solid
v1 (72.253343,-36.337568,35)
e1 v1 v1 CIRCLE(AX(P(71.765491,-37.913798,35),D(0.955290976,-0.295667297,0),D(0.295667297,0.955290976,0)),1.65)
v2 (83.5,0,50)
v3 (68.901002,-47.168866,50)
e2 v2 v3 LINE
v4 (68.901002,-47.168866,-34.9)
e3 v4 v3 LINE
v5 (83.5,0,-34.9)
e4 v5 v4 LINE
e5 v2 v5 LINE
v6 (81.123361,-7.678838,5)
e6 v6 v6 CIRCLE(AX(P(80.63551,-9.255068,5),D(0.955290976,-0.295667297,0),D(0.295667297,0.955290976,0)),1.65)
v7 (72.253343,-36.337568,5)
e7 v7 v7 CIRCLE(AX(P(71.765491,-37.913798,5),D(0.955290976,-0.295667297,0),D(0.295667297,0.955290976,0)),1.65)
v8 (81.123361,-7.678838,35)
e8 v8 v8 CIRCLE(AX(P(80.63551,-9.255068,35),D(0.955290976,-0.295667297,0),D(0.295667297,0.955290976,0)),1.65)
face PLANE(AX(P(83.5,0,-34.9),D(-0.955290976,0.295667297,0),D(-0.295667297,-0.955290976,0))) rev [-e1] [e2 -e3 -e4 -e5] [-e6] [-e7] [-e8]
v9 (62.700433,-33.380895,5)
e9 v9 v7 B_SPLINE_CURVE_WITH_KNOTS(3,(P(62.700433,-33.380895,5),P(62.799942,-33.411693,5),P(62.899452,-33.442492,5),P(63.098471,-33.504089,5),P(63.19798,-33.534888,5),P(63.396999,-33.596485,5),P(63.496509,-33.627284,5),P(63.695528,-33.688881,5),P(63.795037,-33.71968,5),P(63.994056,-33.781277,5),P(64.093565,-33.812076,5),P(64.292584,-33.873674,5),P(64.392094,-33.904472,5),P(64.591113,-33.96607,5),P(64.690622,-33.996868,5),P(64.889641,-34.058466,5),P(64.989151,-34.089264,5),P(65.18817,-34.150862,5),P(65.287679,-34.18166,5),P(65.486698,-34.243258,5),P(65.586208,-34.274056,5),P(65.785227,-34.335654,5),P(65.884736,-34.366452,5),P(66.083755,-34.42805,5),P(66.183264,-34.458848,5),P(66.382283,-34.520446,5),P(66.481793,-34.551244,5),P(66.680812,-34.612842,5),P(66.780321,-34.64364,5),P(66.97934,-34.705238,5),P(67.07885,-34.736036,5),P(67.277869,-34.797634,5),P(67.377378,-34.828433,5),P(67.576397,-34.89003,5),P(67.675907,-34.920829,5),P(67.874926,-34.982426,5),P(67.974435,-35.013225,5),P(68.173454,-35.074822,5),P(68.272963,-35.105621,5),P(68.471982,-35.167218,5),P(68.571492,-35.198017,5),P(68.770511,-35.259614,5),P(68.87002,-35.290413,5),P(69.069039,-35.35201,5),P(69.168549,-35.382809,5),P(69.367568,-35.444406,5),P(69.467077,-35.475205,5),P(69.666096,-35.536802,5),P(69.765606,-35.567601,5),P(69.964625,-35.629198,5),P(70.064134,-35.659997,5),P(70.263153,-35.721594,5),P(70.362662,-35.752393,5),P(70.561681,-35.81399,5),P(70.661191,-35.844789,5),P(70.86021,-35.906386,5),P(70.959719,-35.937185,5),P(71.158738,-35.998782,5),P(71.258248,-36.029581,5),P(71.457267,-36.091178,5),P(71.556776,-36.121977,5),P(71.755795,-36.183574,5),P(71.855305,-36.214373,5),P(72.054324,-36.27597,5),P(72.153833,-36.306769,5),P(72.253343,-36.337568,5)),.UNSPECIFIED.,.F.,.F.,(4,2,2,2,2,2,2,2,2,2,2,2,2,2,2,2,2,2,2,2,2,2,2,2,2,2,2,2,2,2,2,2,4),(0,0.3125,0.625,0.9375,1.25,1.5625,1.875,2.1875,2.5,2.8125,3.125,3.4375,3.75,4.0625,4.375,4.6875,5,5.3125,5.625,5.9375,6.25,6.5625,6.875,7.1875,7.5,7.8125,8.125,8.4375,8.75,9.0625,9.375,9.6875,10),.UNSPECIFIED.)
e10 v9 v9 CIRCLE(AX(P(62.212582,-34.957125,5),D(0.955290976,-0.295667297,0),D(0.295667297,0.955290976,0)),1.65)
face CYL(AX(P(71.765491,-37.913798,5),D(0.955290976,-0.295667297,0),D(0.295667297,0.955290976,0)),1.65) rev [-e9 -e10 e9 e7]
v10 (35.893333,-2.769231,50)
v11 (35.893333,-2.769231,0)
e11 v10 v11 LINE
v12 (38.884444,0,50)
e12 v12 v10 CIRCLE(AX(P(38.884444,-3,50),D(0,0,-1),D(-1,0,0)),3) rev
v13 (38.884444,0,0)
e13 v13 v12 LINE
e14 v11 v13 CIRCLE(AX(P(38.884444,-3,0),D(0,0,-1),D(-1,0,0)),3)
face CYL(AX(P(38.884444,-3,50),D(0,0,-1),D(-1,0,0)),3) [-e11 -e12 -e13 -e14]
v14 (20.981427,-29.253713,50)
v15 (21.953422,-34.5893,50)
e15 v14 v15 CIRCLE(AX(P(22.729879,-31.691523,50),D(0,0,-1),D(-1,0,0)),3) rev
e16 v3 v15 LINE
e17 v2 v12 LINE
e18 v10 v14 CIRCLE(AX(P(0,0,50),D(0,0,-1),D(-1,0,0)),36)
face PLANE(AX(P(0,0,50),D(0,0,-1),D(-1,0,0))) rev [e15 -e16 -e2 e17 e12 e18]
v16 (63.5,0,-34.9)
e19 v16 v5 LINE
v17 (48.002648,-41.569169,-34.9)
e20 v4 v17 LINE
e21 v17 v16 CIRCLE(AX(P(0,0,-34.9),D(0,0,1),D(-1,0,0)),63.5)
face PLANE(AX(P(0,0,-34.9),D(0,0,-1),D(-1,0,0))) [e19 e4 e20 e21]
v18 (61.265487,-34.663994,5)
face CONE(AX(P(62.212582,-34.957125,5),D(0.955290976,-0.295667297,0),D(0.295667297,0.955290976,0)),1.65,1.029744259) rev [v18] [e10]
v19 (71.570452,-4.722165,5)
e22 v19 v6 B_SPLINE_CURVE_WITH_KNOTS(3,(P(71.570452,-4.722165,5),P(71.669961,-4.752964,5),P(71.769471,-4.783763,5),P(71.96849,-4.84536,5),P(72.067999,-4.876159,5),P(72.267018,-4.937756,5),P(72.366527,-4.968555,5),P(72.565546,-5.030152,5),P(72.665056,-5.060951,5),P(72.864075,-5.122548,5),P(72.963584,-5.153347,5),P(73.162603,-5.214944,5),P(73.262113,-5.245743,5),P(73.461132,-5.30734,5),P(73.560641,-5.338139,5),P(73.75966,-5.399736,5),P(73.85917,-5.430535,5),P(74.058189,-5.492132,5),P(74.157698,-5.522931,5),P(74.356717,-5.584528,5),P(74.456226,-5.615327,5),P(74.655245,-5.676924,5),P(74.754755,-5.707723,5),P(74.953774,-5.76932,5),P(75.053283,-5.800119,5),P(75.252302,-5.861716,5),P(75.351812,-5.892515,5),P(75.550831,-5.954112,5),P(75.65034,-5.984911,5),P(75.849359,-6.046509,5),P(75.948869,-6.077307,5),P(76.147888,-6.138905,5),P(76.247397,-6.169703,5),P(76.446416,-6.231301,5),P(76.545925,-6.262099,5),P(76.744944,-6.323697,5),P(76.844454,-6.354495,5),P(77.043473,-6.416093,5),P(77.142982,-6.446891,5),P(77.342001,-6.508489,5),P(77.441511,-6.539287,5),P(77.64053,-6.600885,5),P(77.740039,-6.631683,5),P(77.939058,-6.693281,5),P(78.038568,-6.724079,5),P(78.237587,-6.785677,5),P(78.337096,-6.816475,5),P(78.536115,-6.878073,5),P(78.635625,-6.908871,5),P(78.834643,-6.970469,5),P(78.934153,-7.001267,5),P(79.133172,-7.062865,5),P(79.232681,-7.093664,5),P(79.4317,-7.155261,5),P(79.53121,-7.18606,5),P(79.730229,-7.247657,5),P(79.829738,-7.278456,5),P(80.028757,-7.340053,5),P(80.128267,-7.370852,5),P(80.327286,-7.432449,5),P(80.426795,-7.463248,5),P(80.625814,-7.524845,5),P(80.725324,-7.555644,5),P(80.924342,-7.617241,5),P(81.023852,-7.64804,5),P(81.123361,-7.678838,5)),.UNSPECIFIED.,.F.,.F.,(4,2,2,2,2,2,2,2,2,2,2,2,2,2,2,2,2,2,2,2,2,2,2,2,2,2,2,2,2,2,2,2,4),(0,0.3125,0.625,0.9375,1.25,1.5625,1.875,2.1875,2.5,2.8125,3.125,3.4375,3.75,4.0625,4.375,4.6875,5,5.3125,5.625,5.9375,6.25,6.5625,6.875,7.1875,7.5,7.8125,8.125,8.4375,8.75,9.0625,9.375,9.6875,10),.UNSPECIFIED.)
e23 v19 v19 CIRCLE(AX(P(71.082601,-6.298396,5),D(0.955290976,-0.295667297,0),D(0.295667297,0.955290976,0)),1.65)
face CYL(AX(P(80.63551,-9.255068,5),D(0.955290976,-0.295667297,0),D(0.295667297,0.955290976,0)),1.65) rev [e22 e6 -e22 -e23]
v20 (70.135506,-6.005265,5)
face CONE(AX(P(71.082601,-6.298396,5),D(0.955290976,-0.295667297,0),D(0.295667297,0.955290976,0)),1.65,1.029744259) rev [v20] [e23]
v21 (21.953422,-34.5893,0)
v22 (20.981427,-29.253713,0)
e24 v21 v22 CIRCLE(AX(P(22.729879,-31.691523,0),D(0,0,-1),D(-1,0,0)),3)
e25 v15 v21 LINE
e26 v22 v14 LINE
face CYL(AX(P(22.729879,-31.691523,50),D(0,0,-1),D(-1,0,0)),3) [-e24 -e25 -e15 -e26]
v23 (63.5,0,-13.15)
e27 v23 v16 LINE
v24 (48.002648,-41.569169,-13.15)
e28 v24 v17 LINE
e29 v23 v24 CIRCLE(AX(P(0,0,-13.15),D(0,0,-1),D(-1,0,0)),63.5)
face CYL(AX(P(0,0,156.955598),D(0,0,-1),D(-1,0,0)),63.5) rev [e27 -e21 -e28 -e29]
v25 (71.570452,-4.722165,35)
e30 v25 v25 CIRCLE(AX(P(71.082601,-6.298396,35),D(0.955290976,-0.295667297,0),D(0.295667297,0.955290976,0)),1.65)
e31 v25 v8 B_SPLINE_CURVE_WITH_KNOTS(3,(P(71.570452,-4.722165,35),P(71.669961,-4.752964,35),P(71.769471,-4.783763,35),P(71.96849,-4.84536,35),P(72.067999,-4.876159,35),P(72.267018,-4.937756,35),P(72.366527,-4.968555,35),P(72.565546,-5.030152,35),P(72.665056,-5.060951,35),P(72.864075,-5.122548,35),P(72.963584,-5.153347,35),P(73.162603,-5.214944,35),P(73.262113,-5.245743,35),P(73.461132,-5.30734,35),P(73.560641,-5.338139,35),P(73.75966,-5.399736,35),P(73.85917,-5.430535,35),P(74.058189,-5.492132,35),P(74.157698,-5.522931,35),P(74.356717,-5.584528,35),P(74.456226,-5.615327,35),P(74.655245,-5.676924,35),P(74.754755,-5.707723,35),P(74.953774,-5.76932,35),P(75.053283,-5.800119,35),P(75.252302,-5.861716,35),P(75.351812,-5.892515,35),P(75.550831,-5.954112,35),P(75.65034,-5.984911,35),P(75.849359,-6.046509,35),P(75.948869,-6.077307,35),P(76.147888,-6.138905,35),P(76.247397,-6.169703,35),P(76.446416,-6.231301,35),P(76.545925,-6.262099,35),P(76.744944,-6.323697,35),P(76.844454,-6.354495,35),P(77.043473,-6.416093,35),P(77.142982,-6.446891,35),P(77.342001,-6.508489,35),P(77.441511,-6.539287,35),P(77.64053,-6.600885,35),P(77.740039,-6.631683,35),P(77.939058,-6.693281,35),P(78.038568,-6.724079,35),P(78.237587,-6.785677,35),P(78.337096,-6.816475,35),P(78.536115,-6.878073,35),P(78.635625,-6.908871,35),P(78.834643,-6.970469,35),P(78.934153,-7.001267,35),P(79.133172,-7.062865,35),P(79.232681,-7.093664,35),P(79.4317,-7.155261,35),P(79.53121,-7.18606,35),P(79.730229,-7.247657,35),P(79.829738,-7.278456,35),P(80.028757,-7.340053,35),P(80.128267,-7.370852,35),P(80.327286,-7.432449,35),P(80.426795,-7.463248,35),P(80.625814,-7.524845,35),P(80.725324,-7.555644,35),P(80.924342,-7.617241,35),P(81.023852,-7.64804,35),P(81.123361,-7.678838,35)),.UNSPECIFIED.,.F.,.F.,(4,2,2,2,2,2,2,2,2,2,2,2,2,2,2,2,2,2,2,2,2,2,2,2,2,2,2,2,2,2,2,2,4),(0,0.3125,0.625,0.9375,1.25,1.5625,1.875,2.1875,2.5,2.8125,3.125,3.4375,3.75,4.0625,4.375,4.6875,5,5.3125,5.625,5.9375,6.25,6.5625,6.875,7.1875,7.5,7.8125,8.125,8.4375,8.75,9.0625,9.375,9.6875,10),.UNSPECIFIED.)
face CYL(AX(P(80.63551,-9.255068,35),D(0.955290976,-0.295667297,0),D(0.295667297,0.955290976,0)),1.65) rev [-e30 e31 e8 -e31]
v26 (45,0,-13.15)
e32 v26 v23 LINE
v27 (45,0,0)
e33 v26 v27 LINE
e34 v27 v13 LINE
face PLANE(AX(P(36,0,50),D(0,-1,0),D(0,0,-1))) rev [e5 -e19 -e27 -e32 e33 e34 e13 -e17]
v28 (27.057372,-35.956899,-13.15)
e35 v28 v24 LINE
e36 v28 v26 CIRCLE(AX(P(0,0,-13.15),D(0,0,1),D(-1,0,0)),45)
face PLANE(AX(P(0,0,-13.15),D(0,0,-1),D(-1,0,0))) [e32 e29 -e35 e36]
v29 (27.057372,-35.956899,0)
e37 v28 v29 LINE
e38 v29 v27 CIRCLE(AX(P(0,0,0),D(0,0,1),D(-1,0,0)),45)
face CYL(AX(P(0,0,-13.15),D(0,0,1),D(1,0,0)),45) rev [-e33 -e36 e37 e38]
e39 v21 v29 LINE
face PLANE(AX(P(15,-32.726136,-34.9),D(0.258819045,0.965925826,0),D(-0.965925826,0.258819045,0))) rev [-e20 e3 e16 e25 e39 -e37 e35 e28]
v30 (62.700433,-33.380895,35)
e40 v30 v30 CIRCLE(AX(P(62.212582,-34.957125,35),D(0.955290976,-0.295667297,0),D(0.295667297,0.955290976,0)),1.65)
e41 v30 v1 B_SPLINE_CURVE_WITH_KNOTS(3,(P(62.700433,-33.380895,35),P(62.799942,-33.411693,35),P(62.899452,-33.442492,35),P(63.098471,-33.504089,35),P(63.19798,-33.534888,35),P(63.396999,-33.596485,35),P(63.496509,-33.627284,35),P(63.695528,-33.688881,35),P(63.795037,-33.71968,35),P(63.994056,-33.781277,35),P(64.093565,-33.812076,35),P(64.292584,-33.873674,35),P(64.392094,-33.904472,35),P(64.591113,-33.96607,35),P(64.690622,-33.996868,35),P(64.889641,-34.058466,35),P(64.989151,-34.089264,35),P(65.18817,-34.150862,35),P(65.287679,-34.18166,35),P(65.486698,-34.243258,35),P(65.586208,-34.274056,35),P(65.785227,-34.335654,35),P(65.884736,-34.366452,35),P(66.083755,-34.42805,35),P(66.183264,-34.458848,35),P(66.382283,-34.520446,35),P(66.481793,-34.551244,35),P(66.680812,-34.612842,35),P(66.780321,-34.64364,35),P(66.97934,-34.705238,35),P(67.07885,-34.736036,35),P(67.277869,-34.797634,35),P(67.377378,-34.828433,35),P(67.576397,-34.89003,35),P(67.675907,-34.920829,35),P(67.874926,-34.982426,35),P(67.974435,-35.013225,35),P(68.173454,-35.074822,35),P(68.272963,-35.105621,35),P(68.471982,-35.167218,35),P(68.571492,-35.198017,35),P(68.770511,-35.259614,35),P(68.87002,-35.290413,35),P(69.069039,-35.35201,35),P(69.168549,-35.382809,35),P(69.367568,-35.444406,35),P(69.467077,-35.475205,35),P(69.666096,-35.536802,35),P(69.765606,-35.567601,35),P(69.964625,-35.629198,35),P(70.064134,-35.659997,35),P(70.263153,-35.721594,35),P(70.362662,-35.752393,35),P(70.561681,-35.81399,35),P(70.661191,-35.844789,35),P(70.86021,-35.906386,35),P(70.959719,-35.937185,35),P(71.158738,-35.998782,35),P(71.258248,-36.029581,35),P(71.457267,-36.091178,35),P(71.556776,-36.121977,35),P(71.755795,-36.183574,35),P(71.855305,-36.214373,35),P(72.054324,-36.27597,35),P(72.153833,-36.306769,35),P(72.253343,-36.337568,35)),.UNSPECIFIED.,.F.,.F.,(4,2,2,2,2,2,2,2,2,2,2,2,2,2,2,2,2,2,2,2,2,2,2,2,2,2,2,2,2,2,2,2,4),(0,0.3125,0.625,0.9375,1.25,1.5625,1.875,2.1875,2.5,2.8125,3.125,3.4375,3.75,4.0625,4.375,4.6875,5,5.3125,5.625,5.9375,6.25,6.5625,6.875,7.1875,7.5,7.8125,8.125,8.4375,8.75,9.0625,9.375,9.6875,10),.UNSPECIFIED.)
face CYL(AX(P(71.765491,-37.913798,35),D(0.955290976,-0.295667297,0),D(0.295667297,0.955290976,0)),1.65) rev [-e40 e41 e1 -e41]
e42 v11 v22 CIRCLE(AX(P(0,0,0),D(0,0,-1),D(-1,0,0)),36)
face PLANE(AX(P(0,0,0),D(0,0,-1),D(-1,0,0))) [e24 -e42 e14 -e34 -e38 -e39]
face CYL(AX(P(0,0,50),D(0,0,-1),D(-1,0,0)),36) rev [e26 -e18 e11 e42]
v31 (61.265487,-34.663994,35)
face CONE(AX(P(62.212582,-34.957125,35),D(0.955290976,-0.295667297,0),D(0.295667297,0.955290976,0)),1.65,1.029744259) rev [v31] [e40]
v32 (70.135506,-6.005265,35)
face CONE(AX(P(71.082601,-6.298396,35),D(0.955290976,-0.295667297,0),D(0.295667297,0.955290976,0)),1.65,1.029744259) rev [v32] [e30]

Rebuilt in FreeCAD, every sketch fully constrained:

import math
import FreeCAD as App
import Part
import Sketcher
Q = App.Units.Quantity


def edges_at(feature, points):
    """Names of the edges that pass closest to the given points."""
    edges = feature.Shape.Edges
    near = lambda p: min(range(len(edges)), key=lambda i: edges[i].distToShape(Part.Vertex(*p))[0])
    return sorted({f"Edge{near(p) + 1}" for p in points})

doc = App.newDocument("Part")
body = doc.addObject("PartDesign::Body", "Body")

# Sketch on XY plane
sketch1 = body.newObject("Sketcher::SketchObject", "Sketch")
sketch1.AttachmentSupport = (doc.getObject("XY_Plane"), [""])
sketch1.MapMode = "FlatFace"
sketch1.addGeometry([
    Part.LineSegment(App.Vector(64, 0, 0), App.Vector(36, 0, 0)),
    Part.ArcOfCircle(Part.Circle(App.Vector(0, 0, 0), App.Vector(0, 0, 1), 36), math.radians(-65), math.radians(0)),
    Part.LineSegment(App.Vector(15, -33, 0), App.Vector(15, -62, 0)),
    Part.ArcOfCircle(Part.Circle(App.Vector(0, 0, 0), App.Vector(0, 0, 1), 63), math.radians(-76), math.radians(0)),
], False)
sketch1.addConstraint([
    Sketcher.Constraint("Coincident", 0, 2, 1, 2),
    Sketcher.Constraint("Coincident", 1, 1, 2, 1),
    Sketcher.Constraint("Coincident", 2, 2, 3, 1),
    Sketcher.Constraint("Coincident", 3, 2, 0, 1),
    Sketcher.Constraint("Horizontal", 0),
    Sketcher.Constraint("Vertical", 2),
    Sketcher.Constraint("Coincident", 1, 3, -1, 1),
    Sketcher.Constraint("Coincident", 3, 3, -1, 1),
    Sketcher.Constraint("PointOnObject", 0, 2, -1),
    Sketcher.Constraint("Radius", 1, 36.0),
    Sketcher.Constraint("Radius", 3, 63.5),
    Sketcher.Constraint("DistanceX", -1, 1, 1, 1, 15.0),
])
pad1 = body.newObject("PartDesign::Pad", "Pad")
pad1.Profile = sketch1
pad1.Length = 50

# Sketch on XY plane
sketch2 = body.newObject("Sketcher::SketchObject", "Sketch001")
sketch2.AttachmentSupport = (doc.getObject("XY_Plane"), [""])
sketch2.MapMode = "FlatFace"
sketch2.AttachmentOffset = App.Placement(App.Vector(0, 0, -13.15), App.Rotation())
sketch2.addGeometry([
    Part.LineSegment(App.Vector(45, 0, 0), App.Vector(64, 0, 0)),
    Part.ArcOfCircle(Part.Circle(App.Vector(0, 0, 0), App.Vector(0, 0, 1), 63), math.radians(-76), math.radians(0)),
    Part.LineSegment(App.Vector(15, -62, 0), App.Vector(15, -42, 0)),
    Part.ArcOfCircle(Part.Circle(App.Vector(0, 0, 0), App.Vector(0, 0, 1), 45), math.radians(-71), math.radians(0)),
], False)
sketch2.addConstraint([
    Sketcher.Constraint("Coincident", 0, 2, 1, 2),
    Sketcher.Constraint("Coincident", 1, 1, 2, 1),
    Sketcher.Constraint("Coincident", 2, 2, 3, 1),
    Sketcher.Constraint("Coincident", 3, 2, 0, 1),
    Sketcher.Constraint("Horizontal", 0),
    Sketcher.Constraint("Vertical", 2),
    Sketcher.Constraint("Coincident", 1, 3, -1, 1),
    Sketcher.Constraint("Coincident", 3, 3, -1, 1),
    Sketcher.Constraint("PointOnObject", 0, 2, -1),
    Sketcher.Constraint("Radius", 3, 45.0),
    Sketcher.Constraint("Radius", 1, 63.5),
    Sketcher.Constraint("DistanceX", -1, 1, 1, 1, 15.0),
])
pad2 = body.newObject("PartDesign::Pad", "Pad001")
pad2.Profile = sketch2
pad2.Length = 13.15

# Sketch on XY plane
sketch3 = body.newObject("Sketcher::SketchObject", "Sketch002")
sketch3.AttachmentSupport = (doc.getObject("XY_Plane"), [""])
sketch3.MapMode = "FlatFace"
sketch3.AttachmentOffset = App.Placement(App.Vector(0, 0, -13.15), App.Rotation())
sketch3.addGeometry([
    Part.LineSegment(App.Vector(64, 0, 0), App.Vector(84, 0, 0)),
    Part.ArcOfCircle(Part.Circle(App.Vector(0, 0, 0), App.Vector(0, 0, 1), 84), math.radians(-80), math.radians(0)),
    Part.LineSegment(App.Vector(15, -82, 0), App.Vector(15, -62, 0)),
    Part.ArcOfCircle(Part.Circle(App.Vector(0, 0, 0), App.Vector(0, 0, 1), 63), math.radians(-76), math.radians(0)),
], False)
sketch3.addConstraint([
    Sketcher.Constraint("Coincident", 0, 2, 1, 2),
    Sketcher.Constraint("Coincident", 1, 1, 2, 1),
    Sketcher.Constraint("Coincident", 2, 2, 3, 1),
    Sketcher.Constraint("Coincident", 3, 2, 0, 1),
    Sketcher.Constraint("Horizontal", 0),
    Sketcher.Constraint("Vertical", 2),
    Sketcher.Constraint("Coincident", 1, 3, -1, 1),
    Sketcher.Constraint("Coincident", 3, 3, -1, 1),
    Sketcher.Constraint("PointOnObject", 0, 2, -1),
    Sketcher.Constraint("Radius", 1, 83.5),
    Sketcher.Constraint("Radius", 3, 63.5),
    Sketcher.Constraint("DistanceX", -1, 1, 1, 1, 15.0),
])
pad3 = body.newObject("PartDesign::Pad", "Pad002")
pad3.Profile = sketch3
pad3.Type = "TwoLengths"
pad3.Length = 21.75
pad3.Length2 = 63.15
pad3.Reversed = True

# Sketch on XY plane
sketch4 = body.newObject("Sketcher::SketchObject", "Sketch003")
sketch4.AttachmentSupport = (doc.getObject("XY_Plane"), [""])
sketch4.MapMode = "FlatFace"
sketch4.AttachmentOffset = App.Placement(App.Vector(0, 0, 50), App.Rotation())
sketch4.addGeometry([
    Part.LineSegment(App.Vector(69, -47, 0), App.Vector(15, -33, 0)),
    Part.LineSegment(App.Vector(15, -33, 0), App.Vector(15, -82, 0)),
    Part.ArcOfCircle(Part.Circle(App.Vector(0, 0, 0), App.Vector(0, 0, 1), 84), math.radians(-80), math.radians(-34)),
], False)
sketch4.addConstraint([
    Sketcher.Constraint("Coincident", 0, 2, 1, 1),
    Sketcher.Constraint("Coincident", 1, 2, 2, 1),
    Sketcher.Constraint("Coincident", 2, 2, 0, 1),
    Sketcher.Constraint("Vertical", 1),
    Sketcher.Constraint("Coincident", 2, 3, -1, 1),
    Sketcher.Constraint("Radius", 2, 83.5),
    Sketcher.Constraint("Angle", 0, Q("165 deg")),
    Sketcher.Constraint("DistanceX", -1, 1, 0, 2, 15.0),
    Sketcher.Constraint("DistanceX", -1, 1, 2, 2, 68.901002),
])
pocket1 = body.newObject("PartDesign::Pocket", "Pocket")
pocket1.Profile = sketch4
pocket1.Type = "ThroughAll"
doc.recompute()

fillet = body.newObject("PartDesign::Fillet", "Fillet")
fillet.Base = (pocket1, edges_at(pocket1, [(36, 0, 25), (15, -32.726, 25)]))
fillet.Radius = 3

# Sketch on XY plane
sketch5 = body.newObject("Sketcher::SketchObject", "Sketch004")
sketch5.AttachmentSupport = (doc.getObject("XY_Plane"), [""])
sketch5.MapMode = "FlatFace"
sketch5.AttachmentOffset = App.Placement(App.Vector(0, 0, 50), App.Rotation())
sketch5.addGeometry([
    Part.LineSegment(App.Vector(84, 0, 0), App.Vector(69, -47, 0)),
    Part.ArcOfCircle(Part.Circle(App.Vector(0, 0, 0), App.Vector(0, 0, 1), 83), math.radians(-34), math.radians(0)),
], False)
sketch5.addConstraint([
    Sketcher.Constraint("Coincident", 0, 1, 1, 2),
    Sketcher.Constraint("Coincident", 1, 1, 0, 2),
    Sketcher.Constraint("Coincident", 1, 3, -1, 1),
    Sketcher.Constraint("PointOnObject", 0, 1, -1),
    Sketcher.Constraint("Radius", 1, 83.5),
    Sketcher.Constraint("DistanceX", -1, 1, 1, 1, 68.901002),
])
pocket2 = body.newObject("PartDesign::Pocket", "Pocket001")
pocket2.Profile = sketch5
pocket2.Type = "ThroughAll"

# Sketch on an angled plane
sketch6 = body.newObject("Sketcher::SketchObject", "Sketch005")
sketch6.Placement = App.Placement(App.Vector(76.200501, -23.584433, 0), App.Rotation(App.Vector(0, 0, -1), App.Vector(0.295667297, 0.955290976, 0), App.Vector(0.955290976, -0.295667297, 0), "ZXY"))
sketch6.addGeometry([
    Part.Circle(App.Vector(-35, 15, 0), App.Vector(0, 0, 1), 1.6),
    Part.Circle(App.Vector(-35, -15, 0), App.Vector(0, 0, 1), 1.6),
    Part.Circle(App.Vector(-5, 15, 0), App.Vector(0, 0, 1), 1.6),
    Part.Circle(App.Vector(-5, -15, 0), App.Vector(0, 0, 1), 1.6),
], False)
sketch6.addConstraint([
    Sketcher.Constraint("Equal", 0, 1),
    Sketcher.Constraint("Equal", 1, 2),
    Sketcher.Constraint("Equal", 2, 3),
    Sketcher.Constraint("Symmetric", 0, 3, 1, 3, -1),
    Sketcher.Constraint("Symmetric", 2, 3, 3, 3, -1),
    Sketcher.Constraint("Horizontal", 0, 3, 2, 3),
    Sketcher.Constraint("Diameter", 0, 3.3),
    Sketcher.Constraint("DistanceX", 0, 3, -1, 1, 35.0),
    Sketcher.Constraint("DistanceY", -1, 1, 0, 3, 15.0),
    Sketcher.Constraint("DistanceX", 2, 3, -1, 1, 5.0),
])
doc.recompute()
hole = body.newObject("PartDesign::Hole", "Hole")
hole.Profile = sketch6
hole.ThreadType = "None"
hole.Diameter = 3.3
hole.DepthType = "Dimension"
hole.Depth = 10
hole.DrillPoint = "Angled"
hole.DrillPointAngle = 118

doc.recompute()
